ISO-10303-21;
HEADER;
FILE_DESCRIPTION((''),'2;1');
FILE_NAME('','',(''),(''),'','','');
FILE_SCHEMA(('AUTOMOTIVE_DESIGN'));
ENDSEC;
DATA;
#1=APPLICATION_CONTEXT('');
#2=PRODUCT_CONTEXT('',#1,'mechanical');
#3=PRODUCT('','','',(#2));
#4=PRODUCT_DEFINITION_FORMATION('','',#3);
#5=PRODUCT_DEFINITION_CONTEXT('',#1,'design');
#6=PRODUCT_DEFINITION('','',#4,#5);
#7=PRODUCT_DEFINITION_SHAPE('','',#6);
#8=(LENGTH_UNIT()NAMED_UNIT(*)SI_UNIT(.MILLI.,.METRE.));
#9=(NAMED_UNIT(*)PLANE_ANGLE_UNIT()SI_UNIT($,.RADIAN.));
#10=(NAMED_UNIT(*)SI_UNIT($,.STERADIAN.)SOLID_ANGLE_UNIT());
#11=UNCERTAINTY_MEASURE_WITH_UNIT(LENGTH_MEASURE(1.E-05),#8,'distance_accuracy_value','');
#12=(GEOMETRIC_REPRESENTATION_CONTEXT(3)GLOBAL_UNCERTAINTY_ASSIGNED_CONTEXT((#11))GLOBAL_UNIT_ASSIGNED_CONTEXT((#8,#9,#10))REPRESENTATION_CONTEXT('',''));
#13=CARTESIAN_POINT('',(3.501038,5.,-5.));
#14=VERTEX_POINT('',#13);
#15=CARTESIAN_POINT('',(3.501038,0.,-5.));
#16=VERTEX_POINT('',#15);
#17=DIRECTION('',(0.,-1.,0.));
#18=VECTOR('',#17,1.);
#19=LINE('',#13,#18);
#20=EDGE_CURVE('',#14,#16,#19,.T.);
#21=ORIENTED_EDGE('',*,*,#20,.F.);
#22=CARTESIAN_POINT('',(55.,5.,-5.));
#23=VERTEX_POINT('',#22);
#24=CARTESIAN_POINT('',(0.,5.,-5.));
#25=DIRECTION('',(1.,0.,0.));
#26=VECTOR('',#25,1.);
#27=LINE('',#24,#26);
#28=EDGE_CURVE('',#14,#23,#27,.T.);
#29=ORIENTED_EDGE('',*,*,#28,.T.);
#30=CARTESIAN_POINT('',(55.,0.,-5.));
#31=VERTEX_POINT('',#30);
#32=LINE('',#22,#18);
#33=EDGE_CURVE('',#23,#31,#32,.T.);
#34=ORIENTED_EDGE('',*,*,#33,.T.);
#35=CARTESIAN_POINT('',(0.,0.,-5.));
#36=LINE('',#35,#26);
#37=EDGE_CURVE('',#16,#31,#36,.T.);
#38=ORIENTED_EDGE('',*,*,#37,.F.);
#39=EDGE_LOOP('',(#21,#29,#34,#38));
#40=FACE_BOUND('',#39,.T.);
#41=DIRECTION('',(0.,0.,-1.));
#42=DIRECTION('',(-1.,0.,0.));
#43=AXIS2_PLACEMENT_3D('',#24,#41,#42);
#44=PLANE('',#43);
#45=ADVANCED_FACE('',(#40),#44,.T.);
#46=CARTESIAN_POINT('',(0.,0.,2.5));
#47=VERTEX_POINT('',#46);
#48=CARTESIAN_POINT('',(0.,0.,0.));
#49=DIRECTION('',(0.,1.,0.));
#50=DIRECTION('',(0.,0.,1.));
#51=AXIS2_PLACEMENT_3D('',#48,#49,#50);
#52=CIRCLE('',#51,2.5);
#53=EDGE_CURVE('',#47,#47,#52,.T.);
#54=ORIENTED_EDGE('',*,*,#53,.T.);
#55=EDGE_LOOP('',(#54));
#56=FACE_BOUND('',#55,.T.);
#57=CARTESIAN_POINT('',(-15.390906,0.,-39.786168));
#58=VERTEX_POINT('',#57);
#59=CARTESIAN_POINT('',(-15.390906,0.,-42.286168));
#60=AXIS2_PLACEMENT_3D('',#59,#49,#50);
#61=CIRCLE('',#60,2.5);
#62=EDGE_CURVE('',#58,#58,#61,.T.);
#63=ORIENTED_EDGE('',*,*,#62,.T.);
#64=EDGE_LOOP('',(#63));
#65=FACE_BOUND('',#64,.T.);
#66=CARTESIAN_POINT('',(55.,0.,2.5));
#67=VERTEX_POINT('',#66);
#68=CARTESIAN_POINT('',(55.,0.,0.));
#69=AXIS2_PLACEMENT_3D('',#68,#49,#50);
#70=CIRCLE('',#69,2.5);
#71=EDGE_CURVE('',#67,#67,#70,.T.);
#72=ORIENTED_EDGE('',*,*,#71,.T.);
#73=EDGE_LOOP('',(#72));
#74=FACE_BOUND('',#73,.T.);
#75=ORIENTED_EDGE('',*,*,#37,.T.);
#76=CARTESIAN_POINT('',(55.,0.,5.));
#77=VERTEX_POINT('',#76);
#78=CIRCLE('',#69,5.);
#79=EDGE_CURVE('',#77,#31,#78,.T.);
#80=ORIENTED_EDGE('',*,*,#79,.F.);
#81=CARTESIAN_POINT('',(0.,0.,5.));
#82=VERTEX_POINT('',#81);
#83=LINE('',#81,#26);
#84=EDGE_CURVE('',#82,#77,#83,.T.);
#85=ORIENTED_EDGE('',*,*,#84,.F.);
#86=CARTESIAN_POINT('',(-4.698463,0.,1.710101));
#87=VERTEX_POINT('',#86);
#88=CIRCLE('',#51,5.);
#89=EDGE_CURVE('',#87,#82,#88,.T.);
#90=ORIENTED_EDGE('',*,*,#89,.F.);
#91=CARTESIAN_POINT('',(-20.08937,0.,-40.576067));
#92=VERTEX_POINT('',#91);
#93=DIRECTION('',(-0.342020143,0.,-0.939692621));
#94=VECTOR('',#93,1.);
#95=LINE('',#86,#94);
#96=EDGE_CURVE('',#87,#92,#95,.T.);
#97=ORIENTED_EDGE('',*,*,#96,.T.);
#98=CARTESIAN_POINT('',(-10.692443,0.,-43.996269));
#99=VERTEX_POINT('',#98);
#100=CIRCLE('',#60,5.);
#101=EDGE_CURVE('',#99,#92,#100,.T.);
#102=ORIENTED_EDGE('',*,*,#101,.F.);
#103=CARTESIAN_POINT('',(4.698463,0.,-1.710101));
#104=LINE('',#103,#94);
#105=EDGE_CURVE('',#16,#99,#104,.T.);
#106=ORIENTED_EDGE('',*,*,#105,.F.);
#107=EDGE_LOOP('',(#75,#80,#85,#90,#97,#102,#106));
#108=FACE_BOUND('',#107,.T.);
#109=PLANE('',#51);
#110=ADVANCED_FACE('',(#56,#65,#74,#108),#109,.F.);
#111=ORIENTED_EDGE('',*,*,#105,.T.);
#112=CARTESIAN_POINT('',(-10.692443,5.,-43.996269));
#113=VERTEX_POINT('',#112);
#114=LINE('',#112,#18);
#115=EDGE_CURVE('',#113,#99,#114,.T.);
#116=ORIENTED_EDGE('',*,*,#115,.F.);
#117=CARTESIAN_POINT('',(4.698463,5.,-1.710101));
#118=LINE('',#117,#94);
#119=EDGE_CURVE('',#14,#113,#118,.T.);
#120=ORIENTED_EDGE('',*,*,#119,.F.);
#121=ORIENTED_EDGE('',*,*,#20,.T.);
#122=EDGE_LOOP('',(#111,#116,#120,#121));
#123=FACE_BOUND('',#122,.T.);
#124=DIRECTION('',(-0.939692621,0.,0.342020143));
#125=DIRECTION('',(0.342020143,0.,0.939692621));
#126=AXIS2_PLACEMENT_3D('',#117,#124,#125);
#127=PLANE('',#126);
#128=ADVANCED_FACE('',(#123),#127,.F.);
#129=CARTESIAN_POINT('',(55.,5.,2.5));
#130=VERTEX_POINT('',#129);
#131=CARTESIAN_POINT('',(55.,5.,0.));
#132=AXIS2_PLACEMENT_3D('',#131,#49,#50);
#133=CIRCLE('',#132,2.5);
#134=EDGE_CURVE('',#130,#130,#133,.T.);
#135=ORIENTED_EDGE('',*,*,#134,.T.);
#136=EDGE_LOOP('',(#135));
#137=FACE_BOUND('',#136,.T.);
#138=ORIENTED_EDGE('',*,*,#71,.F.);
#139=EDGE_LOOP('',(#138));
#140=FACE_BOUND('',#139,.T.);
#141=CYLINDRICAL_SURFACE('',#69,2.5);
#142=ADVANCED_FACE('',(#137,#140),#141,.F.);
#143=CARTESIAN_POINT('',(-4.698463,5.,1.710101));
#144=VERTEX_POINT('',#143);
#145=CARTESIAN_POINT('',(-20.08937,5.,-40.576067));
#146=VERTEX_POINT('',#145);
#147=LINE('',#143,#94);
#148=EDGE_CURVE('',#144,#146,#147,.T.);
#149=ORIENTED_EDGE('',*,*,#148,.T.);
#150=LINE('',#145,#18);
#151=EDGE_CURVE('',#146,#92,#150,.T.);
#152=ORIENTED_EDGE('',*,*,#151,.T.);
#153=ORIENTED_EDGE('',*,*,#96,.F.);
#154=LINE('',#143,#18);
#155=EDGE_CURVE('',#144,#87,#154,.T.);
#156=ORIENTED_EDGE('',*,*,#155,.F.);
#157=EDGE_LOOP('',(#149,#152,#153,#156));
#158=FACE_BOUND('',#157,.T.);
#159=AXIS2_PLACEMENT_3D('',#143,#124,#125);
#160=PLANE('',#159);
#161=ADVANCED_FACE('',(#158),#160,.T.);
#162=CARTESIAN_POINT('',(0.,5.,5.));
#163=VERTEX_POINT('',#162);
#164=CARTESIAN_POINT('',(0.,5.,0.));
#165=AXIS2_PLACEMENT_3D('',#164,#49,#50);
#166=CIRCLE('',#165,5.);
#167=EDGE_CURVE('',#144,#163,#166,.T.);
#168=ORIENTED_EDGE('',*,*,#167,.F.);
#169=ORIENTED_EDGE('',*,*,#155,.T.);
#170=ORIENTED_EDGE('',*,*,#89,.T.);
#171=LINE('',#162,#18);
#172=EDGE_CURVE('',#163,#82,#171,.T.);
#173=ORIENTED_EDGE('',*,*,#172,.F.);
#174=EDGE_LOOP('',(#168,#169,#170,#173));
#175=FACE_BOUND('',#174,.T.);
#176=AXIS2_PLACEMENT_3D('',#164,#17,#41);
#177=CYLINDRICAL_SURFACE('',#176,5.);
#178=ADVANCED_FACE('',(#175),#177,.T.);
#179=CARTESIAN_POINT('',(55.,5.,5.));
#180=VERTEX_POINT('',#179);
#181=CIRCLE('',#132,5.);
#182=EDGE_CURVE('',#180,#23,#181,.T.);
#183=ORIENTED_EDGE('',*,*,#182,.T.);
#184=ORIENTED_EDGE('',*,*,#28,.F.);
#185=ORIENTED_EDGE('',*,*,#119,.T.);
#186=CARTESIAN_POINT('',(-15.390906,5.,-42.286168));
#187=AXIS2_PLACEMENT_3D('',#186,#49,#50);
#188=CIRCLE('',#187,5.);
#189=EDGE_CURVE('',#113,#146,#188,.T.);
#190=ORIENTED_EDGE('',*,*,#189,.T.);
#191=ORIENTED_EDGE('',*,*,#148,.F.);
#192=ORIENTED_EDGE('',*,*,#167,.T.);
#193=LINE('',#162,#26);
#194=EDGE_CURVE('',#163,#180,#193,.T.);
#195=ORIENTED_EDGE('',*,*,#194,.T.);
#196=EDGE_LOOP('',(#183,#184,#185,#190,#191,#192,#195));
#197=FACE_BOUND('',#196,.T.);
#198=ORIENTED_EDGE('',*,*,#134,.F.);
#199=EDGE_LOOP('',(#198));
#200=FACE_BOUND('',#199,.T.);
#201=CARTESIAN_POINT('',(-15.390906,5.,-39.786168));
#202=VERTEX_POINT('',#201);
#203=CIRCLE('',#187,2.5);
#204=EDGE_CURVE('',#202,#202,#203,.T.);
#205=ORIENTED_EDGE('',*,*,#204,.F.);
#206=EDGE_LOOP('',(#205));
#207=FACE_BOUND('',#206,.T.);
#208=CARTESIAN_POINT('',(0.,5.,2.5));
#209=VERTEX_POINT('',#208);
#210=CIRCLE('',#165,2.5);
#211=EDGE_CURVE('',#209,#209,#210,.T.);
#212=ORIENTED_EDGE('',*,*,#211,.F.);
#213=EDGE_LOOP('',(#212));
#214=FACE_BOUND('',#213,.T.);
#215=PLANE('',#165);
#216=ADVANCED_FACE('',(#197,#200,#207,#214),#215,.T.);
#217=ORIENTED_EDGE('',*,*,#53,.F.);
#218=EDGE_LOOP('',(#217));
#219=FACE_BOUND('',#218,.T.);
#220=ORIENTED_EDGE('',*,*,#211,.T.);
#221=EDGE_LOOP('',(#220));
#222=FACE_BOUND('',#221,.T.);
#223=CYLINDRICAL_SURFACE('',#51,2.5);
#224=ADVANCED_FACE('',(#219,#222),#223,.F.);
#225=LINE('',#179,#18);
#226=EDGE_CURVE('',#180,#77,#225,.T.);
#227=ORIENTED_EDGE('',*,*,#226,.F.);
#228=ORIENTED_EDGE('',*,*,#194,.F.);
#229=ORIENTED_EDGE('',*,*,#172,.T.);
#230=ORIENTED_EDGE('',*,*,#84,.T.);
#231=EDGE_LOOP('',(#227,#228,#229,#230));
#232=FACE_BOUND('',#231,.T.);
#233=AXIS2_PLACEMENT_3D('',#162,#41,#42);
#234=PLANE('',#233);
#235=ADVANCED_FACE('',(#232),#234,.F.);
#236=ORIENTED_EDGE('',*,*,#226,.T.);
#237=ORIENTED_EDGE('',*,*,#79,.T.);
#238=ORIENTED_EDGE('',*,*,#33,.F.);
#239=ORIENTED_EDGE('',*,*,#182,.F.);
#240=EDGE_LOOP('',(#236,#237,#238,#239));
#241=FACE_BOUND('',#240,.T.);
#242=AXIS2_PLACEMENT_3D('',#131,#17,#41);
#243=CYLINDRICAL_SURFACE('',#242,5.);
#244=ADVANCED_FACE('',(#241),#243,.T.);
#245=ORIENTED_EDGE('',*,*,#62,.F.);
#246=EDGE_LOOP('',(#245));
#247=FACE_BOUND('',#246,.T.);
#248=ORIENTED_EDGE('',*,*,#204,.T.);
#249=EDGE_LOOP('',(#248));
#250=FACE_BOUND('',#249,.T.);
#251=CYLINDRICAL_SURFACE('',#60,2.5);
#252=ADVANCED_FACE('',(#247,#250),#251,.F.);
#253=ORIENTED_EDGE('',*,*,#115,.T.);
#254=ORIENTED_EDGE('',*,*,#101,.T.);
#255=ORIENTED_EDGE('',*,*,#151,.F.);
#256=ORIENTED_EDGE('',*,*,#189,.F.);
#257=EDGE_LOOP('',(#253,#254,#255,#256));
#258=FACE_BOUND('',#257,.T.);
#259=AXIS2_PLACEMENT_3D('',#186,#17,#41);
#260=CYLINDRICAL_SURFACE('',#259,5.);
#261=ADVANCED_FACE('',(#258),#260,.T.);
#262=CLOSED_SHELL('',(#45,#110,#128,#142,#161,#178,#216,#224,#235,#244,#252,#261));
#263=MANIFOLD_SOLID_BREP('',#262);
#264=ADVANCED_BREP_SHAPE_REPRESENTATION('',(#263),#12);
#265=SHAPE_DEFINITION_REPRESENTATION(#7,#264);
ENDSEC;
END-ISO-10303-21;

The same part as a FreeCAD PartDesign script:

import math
import FreeCAD as App
import Part
import Sketcher
Q = App.Units.Quantity

doc = App.newDocument("Part")
body = doc.addObject("PartDesign::Body", "Body")

sketch1 = doc.addObject("Sketcher::SketchObject", "Sketch")
body.addObject(sketch1)
sketch1.AttachmentSupport = (doc.XZ_Plane, [""])
sketch1.MapMode = "FlatFace"
sketch1.addGeometry(Part.LineSegment(App.Vector(4, -5, 0), App.Vector(-11, -44, 0)), False)
sketch1.addGeometry(Part.ArcOfCircle(Part.Circle(App.Vector(-15, -42, 0), App.Vector(0, 0, 1), 5), math.radians(160), math.radians(340)), False)
sketch1.addGeometry(Part.LineSegment(App.Vector(-20, -41, 0), App.Vector(-5, 2, 0)), False)
sketch1.addGeometry(Part.ArcOfCircle(Part.Circle(App.Vector(0, 0, 0), App.Vector(0, 0, 1), 5), math.radians(90), math.radians(160)), False)
sketch1.addGeometry(Part.LineSegment(App.Vector(0, 5, 0), App.Vector(55, 5, 0)), False)
sketch1.addGeometry(Part.ArcOfCircle(Part.Circle(App.Vector(55, 0, 0), App.Vector(0, 0, 1), 5), math.radians(-90), math.radians(90)), False)
sketch1.addGeometry(Part.LineSegment(App.Vector(55, -5, 0), App.Vector(4, -5, 0)), False)
sketch1.addConstraint(Sketcher.Constraint("Tangent", 0, 2, 1, 2))
sketch1.addConstraint(Sketcher.Constraint("Tangent", 1, 1, 2, 1))
sketch1.addConstraint(Sketcher.Constraint("Tangent", 2, 2, 3, 2))
sketch1.addConstraint(Sketcher.Constraint("Tangent", 3, 1, 4, 1))
sketch1.addConstraint(Sketcher.Constraint("Tangent", 4, 2, 5, 2))
sketch1.addConstraint(Sketcher.Constraint("Tangent", 5, 1, 6, 1))
sketch1.addConstraint(Sketcher.Constraint("Coincident", 6, 2, 0, 1))
sketch1.addConstraint(Sketcher.Constraint("Horizontal", 4))
sketch1.addConstraint(Sketcher.Constraint("Horizontal", 6))
sketch1.addConstraint(Sketcher.Constraint("Coincident", 3, 3, -1, 1))
sketch1.addConstraint(Sketcher.Constraint("Equal", 1, 3))
sketch1.addConstraint(Sketcher.Constraint("Equal", 3, 5))
sketch1.addConstraint(Sketcher.Constraint("Parallel", 0, 2))
sketch1.addConstraint(Sketcher.Constraint("Radius", 1, 5.0))
sketch1.addConstraint(Sketcher.Constraint("DistanceX", 4, 1, 4, 2, 55.0))
sketch1.addConstraint(Sketcher.Constraint("Angle", 0, Q("-110 deg")))
sketch1.addConstraint(Sketcher.Constraint("Distance", 2, 45.0))
pad1 = doc.addObject("PartDesign::Pad", "Pad")
body.addObject(pad1)
pad1.Profile = sketch1
pad1.Length = 5
pad1.Reversed = True

sketch2 = doc.addObject("Sketcher::SketchObject", "Sketch001")
body.addObject(sketch2)
sketch2.AttachmentSupport = (doc.XZ_Plane, [""])
sketch2.MapMode = "FlatFace"
sketch2.AttachmentOffset = App.Placement(App.Vector(0, 0, -5), App.Rotation())
sketch2.addGeometry(Part.Circle(App.Vector(-15.4, -42.3, 0), App.Vector(0, 0, 1), 2.5), False)
sketch2.addGeometry(Part.Circle(App.Vector(55, 0, 0), App.Vector(0, 0, 1), 2.5), False)
sketch2.addConstraint(Sketcher.Constraint("Equal", 0, 1))
sketch2.addConstraint(Sketcher.Constraint("PointOnObject", 1, 3, -1))
sketch2.addConstraint(Sketcher.Constraint("Diameter", 0, 5.0))
sketch2.addConstraint(Sketcher.Constraint("DistanceX", -1, 1, 1, 3, 55.0))
sketch2.addConstraint(Sketcher.Constraint("DistanceX", 0, 3, -1, 1, 15.390906))
sketch2.addConstraint(Sketcher.Constraint("DistanceY", 0, 3, -1, 1, 42.286168))
pocket1 = doc.addObject("PartDesign::Pocket", "Pocket")
body.addObject(pocket1)
pocket1.Profile = sketch2
pocket1.Length = 5
pocket1.Reversed = True

sketch3 = doc.addObject("Sketcher::SketchObject", "Sketch002")
body.addObject(sketch3)
sketch3.AttachmentSupport = (doc.XZ_Plane, [""])
sketch3.MapMode = "FlatFace"
sketch3.AttachmentOffset = App.Placement(App.Vector(0, 0, -5), App.Rotation())
sketch3.addGeometry(Part.Circle(App.Vector(0, 0, 0), App.Vector(0, 0, 1), 2.5), False)
sketch3.addConstraint(Sketcher.Constraint("Coincident", 0, 3, -1, 1))
sketch3.addConstraint(Sketcher.Constraint("Diameter", 0, 5.0))
pocket2 = doc.addObject("PartDesign::Pocket", "Pocket001")
body.addObject(pocket2)
pocket2.Profile = sketch3
pocket2.Length = 5
pocket2.Reversed = True

doc.recompute()
